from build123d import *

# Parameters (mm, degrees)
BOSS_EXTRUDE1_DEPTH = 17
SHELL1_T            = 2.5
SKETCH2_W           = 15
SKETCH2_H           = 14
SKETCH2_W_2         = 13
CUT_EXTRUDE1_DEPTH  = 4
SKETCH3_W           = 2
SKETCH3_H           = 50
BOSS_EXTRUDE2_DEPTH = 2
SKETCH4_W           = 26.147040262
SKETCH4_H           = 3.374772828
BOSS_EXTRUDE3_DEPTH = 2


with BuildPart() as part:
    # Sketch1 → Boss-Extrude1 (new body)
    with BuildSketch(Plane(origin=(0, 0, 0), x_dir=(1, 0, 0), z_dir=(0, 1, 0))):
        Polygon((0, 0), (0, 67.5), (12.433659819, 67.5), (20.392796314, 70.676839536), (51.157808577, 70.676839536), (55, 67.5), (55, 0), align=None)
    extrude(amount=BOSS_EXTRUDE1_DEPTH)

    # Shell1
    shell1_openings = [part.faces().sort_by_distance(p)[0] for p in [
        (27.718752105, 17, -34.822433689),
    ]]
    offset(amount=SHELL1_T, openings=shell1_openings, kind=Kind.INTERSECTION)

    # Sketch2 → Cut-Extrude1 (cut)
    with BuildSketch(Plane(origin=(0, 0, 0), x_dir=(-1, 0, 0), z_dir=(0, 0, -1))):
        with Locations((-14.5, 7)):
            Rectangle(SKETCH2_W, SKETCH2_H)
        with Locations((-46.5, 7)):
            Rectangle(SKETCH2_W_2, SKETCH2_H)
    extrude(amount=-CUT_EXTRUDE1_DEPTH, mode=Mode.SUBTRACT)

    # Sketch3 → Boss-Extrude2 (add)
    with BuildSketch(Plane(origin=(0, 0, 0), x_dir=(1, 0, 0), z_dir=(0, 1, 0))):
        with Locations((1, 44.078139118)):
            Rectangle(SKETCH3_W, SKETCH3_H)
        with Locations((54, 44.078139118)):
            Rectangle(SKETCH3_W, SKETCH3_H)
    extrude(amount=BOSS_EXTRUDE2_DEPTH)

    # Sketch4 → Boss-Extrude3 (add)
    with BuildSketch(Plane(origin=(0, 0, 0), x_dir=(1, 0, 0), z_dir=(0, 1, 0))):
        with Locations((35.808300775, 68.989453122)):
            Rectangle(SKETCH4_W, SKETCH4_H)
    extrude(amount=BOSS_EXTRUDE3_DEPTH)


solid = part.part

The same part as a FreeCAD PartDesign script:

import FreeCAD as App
import Part
import Sketcher
from FreeCAD import Vector
Q = App.Units.Quantity


def faces_at(feature, points):
    """Names of the faces that lie closest to the given points."""
    faces = feature.Shape.Faces
    near = lambda p: min(range(len(faces)), key=lambda i: faces[i].distToShape(Part.Vertex(*p))[0])
    return sorted({f"Face{near(p) + 1}" for p in points})


def add_polygon(sketch, points):
    """Adds a closed chain of lines whose ends are joined by coincident constraints."""
    first, n = sketch.GeometryCount, len(points)
    for a, b in zip(points, points[1:] + points[:1]):
        sketch.addGeometry(Part.LineSegment(App.Vector(*a, 0), App.Vector(*b, 0)), False)
    for i in range(n):
        sketch.addConstraint(Sketcher.Constraint("Coincident", first + i, 2, first + (i + 1) % n, 1))

doc = App.newDocument("Part")
body = doc.addObject("PartDesign::Body", "Body")

sketch1 = body.newObject("Sketcher::SketchObject", "Sketch")
sketch1.AttachmentSupport = (doc.getObject("XZ_Plane"), [""])
sketch1.MapMode = "FlatFace"
add_polygon(sketch1, [(0, -67.5), (0, 0), (55, 0), (55, -67.5), (51.2, -70.7), (20.4, -70.7), (12.4, -67.5)])
sketch1.addConstraint([
    Sketcher.Constraint("Vertical", 0),
    Sketcher.Constraint("Horizontal", 1),
    Sketcher.Constraint("Vertical", 2),
    Sketcher.Constraint("Horizontal", 4),
    Sketcher.Constraint("Horizontal", 6),
    Sketcher.Constraint("Coincident", 0, 2, -1, 1),
    Sketcher.Constraint("Horizontal", 2, 2, 5, 2),
    Sketcher.Constraint("DistanceX", 1, 1, 1, 2, Q("55 mm")),
    Sketcher.Constraint("DistanceY", 0, 1, 0, 2, Q("67.5 mm")),
    Sketcher.Constraint("DistanceX", 6, 2, 6, 1, Q("12.43366 mm")),
    Sketcher.Constraint("DistanceX", 4, 2, 4, 1, Q("30.765012 mm")),
    Sketcher.Constraint("DistanceX", -1, 1, 3, 2, Q("51.157809 mm")),
    Sketcher.Constraint("DistanceY", 3, 2, -1, 1, Q("70.67684 mm")),
])
pad1 = body.newObject("PartDesign::Pad", "Pad")
pad1.Profile = sketch1
pad1.Length = 17
pad1.Reversed = True
doc.recompute()

thickness = body.newObject("PartDesign::Thickness", "Thickness")
thickness.Base = (pad1, faces_at(pad1, [(27.5, 17, -35.338)]))
thickness.Value = 2.5
thickness.Reversed = False
thickness.Join = "Intersection"

sketch2 = body.newObject("Sketcher::SketchObject", "Sketch001")
sketch2.AttachmentSupport = (doc.getObject("XY_Plane"), [""])
sketch2.MapMode = "FlatFace"
add_polygon(sketch2, [(22, 14), (22, 0), (7, 0), (7, 14)])
add_polygon(sketch2, [(53, 14), (53, 0), (40, 0), (40, 14)])
sketch2.addConstraint([
    Sketcher.Constraint("Vertical", 0),
    Sketcher.Constraint("Horizontal", 1),
    Sketcher.Constraint("Vertical", 2),
    Sketcher.Constraint("Horizontal", 3),
    Sketcher.Constraint("Vertical", 4),
    Sketcher.Constraint("Horizontal", 5),
    Sketcher.Constraint("Vertical", 6),
    Sketcher.Constraint("Horizontal", 7),
    Sketcher.Constraint("PointOnObject", 0, 2, -1),
    Sketcher.Constraint("PointOnObject", 4, 2, -1),
    Sketcher.Constraint("Horizontal", 3, 2, 6, 2),
    Sketcher.Constraint("DistanceX", 1, 2, 1, 1, Q("15 mm")),
    Sketcher.Constraint("DistanceX", 5, 2, 5, 1, Q("13 mm")),
    Sketcher.Constraint("DistanceY", 0, 2, 0, 1, Q("14 mm")),
    Sketcher.Constraint("DistanceX", -1, 1, 0, 2, Q("22 mm")),
    Sketcher.Constraint("DistanceX", -1, 1, 4, 2, Q("53 mm")),
])
pocket1 = body.newObject("PartDesign::Pocket", "Pocket")
pocket1.Profile = sketch2
pocket1.Length = 4
pocket1.Reversed = True

sketch3 = body.newObject("Sketcher::SketchObject", "Sketch002")
sketch3.AttachmentSupport = (doc.getObject("XZ_Plane"), [""])
sketch3.MapMode = "FlatFace"
add_polygon(sketch3, [(0, -69.1), (0, -19.1), (2, -19.1), (2, -69.1)])
add_polygon(sketch3, [(53, -69.1), (53, -19.1), (55, -19.1), (55, -69.1)])
sketch3.addConstraint([
    Sketcher.Constraint("Vertical", 0),
    Sketcher.Constraint("Horizontal", 1),
    Sketcher.Constraint("Vertical", 2),
    Sketcher.Constraint("Horizontal", 3),
    Sketcher.Constraint("Vertical", 4),
    Sketcher.Constraint("Horizontal", 5),
    Sketcher.Constraint("Vertical", 6),
    Sketcher.Constraint("Horizontal", 7),
    Sketcher.Constraint("PointOnObject", 0, 2, -2),
    Sketcher.Constraint("Horizontal", 1, 2, 4, 2),
    Sketcher.Constraint("Horizontal", 3, 2, 6, 2),
    Sketcher.Constraint("Equal", 3, 5),
    Sketcher.Constraint("DistanceX", 1, 1, 1, 2, Q("2 mm")),
    Sketcher.Constraint("DistanceY", 0, 1, 0, 2, Q("50 mm")),
    Sketcher.Constraint("DistanceX", -1, 1, 4, 2, Q("53 mm")),
    Sketcher.Constraint("DistanceY", 0, 2, -1, 1, Q("19.078139 mm")),
])
pad2 = body.newObject("PartDesign::Pad", "Pad001")
pad2.Profile = sketch3
pad2.Length = 2
pad2.Reversed = True

sketch4 = body.newObject("Sketcher::SketchObject", "Sketch003")
sketch4.AttachmentSupport = (doc.getObject("XZ_Plane"), [""])
sketch4.MapMode = "FlatFace"
add_polygon(sketch4, [(22.7, -70.7), (22.7, -67.3), (48.9, -67.3), (48.9, -70.7)])
sketch4.addConstraint([
    Sketcher.Constraint("Vertical", 0),
    Sketcher.Constraint("Horizontal", 1),
    Sketcher.Constraint("Vertical", 2),
    Sketcher.Constraint("Horizontal", 3),
    Sketcher.Constraint("DistanceX", 1, 1, 1, 2, Q("26.14704 mm")),
    Sketcher.Constraint("DistanceY", 0, 1, 0, 2, Q("3.374773 mm")),
    Sketcher.Constraint("DistanceX", -1, 1, 0, 2, Q("22.734781 mm")),
    Sketcher.Constraint("DistanceY", 2, 2, -1, 1, Q("70.67684 mm")),
])
pad3 = body.newObject("PartDesign::Pad", "Pad002")
pad3.Profile = sketch4
pad3.Length = 2
pad3.Reversed = True

doc.recompute()
